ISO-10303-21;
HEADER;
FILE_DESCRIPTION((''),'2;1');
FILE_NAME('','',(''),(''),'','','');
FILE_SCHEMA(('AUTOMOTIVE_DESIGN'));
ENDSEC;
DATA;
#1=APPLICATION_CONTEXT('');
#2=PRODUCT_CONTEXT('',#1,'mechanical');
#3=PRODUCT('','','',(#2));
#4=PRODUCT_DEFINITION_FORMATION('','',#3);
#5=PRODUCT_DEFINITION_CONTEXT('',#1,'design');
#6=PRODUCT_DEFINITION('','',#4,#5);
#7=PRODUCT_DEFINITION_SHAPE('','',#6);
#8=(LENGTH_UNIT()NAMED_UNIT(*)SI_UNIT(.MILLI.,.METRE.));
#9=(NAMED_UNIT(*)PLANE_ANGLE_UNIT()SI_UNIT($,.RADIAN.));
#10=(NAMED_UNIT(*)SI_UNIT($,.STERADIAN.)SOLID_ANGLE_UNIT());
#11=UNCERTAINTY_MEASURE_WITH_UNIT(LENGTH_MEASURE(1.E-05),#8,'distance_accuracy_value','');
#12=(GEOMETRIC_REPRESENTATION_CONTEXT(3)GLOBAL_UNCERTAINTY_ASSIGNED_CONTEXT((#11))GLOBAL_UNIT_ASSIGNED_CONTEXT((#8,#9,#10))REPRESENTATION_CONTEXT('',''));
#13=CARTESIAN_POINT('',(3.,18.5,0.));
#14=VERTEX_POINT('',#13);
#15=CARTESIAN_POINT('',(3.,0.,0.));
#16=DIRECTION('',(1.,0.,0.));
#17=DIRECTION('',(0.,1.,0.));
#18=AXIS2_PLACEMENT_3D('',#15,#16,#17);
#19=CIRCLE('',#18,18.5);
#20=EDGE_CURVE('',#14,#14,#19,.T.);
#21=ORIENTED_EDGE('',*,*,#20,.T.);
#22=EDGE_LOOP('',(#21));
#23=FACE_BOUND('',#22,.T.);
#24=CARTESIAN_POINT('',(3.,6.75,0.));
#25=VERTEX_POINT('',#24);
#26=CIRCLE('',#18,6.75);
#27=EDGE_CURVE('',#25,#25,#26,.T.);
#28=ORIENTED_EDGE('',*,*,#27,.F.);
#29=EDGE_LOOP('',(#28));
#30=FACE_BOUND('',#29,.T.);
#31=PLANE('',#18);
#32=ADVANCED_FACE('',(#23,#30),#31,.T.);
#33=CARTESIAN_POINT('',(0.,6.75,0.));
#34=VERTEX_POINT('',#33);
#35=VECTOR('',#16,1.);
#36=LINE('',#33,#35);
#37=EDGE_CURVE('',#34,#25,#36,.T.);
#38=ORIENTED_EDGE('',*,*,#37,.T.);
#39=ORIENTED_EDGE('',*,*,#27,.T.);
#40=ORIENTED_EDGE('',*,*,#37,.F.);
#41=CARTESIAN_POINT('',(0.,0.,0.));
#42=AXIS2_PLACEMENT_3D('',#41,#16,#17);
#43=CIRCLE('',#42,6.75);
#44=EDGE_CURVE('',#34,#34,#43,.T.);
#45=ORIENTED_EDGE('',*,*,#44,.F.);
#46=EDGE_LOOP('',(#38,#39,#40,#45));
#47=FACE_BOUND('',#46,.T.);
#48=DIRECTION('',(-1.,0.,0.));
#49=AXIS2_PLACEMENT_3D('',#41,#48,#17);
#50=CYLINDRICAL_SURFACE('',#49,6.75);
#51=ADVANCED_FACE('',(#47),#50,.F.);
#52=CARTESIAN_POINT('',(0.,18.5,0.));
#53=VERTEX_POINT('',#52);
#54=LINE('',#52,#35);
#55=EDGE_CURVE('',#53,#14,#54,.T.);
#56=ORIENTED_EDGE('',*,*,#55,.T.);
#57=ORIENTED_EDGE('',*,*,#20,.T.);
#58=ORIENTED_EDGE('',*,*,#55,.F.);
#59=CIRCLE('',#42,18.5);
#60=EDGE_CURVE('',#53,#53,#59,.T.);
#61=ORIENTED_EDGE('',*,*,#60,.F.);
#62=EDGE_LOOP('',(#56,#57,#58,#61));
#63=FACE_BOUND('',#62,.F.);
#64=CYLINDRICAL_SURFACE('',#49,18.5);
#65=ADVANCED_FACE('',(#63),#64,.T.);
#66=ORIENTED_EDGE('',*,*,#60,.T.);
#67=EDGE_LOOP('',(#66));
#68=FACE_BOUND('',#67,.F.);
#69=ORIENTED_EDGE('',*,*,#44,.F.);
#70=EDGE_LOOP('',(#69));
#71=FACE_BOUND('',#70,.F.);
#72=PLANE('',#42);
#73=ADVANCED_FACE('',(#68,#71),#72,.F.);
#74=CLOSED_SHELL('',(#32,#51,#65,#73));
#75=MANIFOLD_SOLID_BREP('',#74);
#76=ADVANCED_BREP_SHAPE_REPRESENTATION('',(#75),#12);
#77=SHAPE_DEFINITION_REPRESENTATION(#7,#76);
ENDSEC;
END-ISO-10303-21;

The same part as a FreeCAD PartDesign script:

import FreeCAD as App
import Part
import Sketcher
from FreeCAD import Vector

doc = App.newDocument("Part")
body = doc.addObject("PartDesign::Body", "Body")

sketch1 = body.newObject("Sketcher::SketchObject", "Sketch")
sketch1.AttachmentSupport = (doc.getObject("YZ_Plane"), [""])
sketch1.MapMode = "FlatFace"
sketch1.addGeometry([
    Part.Circle(Vector(0, 0, 0), Vector(0, 0, 1), 18),
    Part.Circle(Vector(0, 0, 0), Vector(0, 0, 1), 7),
], False)
sketch1.addConstraint([
    Sketcher.Constraint("Coincident", 0, 3, -1, 1),
    Sketcher.Constraint("Coincident", 1, 3, -1, 1),
    Sketcher.Constraint("Diameter", 0, 37.0),
    Sketcher.Constraint("Diameter", 1, 13.5),
])
pad1 = body.newObject("PartDesign::Pad", "Pad")
pad1.Profile = sketch1
pad1.Length = 3

doc.recompute()
